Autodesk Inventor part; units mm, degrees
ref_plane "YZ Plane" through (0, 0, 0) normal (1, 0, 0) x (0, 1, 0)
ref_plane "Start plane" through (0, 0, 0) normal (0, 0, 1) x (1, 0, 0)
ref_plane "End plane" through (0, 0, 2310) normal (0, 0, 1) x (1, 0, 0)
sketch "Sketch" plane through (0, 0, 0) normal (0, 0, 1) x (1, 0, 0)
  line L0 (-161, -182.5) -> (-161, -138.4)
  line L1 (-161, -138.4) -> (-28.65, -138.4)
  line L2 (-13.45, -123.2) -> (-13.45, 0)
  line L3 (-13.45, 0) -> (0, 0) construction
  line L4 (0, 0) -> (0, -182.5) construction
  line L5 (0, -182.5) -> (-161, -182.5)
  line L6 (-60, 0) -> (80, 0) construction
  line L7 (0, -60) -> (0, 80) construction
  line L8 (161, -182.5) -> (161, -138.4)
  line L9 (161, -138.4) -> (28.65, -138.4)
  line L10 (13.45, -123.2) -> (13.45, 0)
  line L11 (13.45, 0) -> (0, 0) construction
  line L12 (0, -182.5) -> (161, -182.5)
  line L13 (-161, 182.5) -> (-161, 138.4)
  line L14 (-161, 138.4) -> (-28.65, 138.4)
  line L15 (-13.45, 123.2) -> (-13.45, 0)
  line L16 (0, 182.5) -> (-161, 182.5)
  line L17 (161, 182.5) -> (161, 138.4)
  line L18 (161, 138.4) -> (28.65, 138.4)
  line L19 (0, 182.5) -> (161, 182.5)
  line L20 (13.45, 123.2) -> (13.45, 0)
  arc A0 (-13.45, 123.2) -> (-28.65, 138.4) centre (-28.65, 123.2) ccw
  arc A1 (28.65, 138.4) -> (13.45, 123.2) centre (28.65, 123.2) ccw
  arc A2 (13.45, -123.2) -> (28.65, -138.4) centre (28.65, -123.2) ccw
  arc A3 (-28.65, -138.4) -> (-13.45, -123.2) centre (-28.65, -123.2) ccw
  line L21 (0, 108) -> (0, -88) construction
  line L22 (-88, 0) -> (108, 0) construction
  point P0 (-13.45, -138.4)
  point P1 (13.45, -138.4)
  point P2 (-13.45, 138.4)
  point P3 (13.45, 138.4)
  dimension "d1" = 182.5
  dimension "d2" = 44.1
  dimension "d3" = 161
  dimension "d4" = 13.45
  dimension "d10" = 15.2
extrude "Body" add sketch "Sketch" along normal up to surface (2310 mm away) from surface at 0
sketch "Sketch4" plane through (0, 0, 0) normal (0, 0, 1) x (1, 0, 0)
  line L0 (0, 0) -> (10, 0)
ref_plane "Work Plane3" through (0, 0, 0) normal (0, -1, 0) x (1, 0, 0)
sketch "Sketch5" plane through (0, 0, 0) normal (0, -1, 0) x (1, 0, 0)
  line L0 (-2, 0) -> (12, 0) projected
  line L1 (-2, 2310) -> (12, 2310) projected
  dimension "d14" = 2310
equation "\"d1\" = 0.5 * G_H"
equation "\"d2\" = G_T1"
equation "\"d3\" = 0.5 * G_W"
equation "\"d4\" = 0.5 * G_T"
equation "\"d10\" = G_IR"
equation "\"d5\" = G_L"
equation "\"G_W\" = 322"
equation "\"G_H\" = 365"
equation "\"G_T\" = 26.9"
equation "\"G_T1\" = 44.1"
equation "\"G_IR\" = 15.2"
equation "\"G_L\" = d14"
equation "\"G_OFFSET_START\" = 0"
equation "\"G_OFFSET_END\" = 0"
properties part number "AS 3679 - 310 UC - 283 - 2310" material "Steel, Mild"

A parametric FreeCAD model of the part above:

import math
import FreeCAD as App
import Part
import Sketcher
from FreeCAD import Vector

doc = App.newDocument("Part")
body = doc.addObject("PartDesign::Body", "Body")

# Sketch on XY plane
sketch1 = body.newObject("Sketcher::SketchObject", "Sketch")
sketch1.AttachmentSupport = (doc.getObject("XY_Plane"), [""])
sketch1.MapMode = "FlatFace"
sketch1.addGeometry([
    Part.LineSegment(Vector(-161, -138.4, 0), Vector(-161, -182.5, 0)),  # 0
    Part.LineSegment(Vector(-161, -182.5, 0), Vector(161, -182.5, 0)),  # 1
    Part.LineSegment(Vector(161, -182.5, 0), Vector(161, -138.4, 0)),  # 2
    Part.LineSegment(Vector(161, -138.4, 0), Vector(28.65, -138.4, 0)),  # 3
    Part.ArcOfCircle(Part.Circle(Vector(28.65, -123.2, 0), Vector(0, 0, 1), 15.2), math.radians(180), math.radians(270)),  # 4
    Part.LineSegment(Vector(13.45, -123.2, 0), Vector(13.45, 123.2, 0)),  # 5
    Part.ArcOfCircle(Part.Circle(Vector(28.65, 123.2, 0), Vector(0, 0, 1), 15.2), math.radians(90), math.radians(180)),  # 6
    Part.LineSegment(Vector(28.65, 138.4, 0), Vector(161, 138.4, 0)),  # 7
    Part.LineSegment(Vector(161, 138.4, 0), Vector(161, 182.5, 0)),  # 8
    Part.LineSegment(Vector(161, 182.5, 0), Vector(-161, 182.5, 0)),  # 9
    Part.LineSegment(Vector(-161, 182.5, 0), Vector(-161, 138.4, 0)),  # 10
    Part.LineSegment(Vector(-161, 138.4, 0), Vector(-28.65, 138.4, 0)),  # 11
    Part.ArcOfCircle(Part.Circle(Vector(-28.65, 123.2, 0), Vector(0, 0, 1), 15.2), math.radians(0), math.radians(90)),  # 12
    Part.LineSegment(Vector(-13.45, 123.2, 0), Vector(-13.45, -123.2, 0)),  # 13
    Part.ArcOfCircle(Part.Circle(Vector(-28.65, -123.2, 0), Vector(0, 0, 1), 15.2), math.radians(-90), math.radians(0)),  # 14
    Part.LineSegment(Vector(-28.65, -138.4, 0), Vector(-161, -138.4, 0)),  # 15
], False)
sketch1.addConstraint([
    Sketcher.Constraint("Coincident", 0, 2, 1, 1),
    Sketcher.Constraint("Coincident", 1, 2, 2, 1),
    Sketcher.Constraint("Coincident", 2, 2, 3, 1),
    Sketcher.Constraint("Tangent", 3, 2, 4, 2),
    Sketcher.Constraint("Tangent", 4, 1, 5, 1),
    Sketcher.Constraint("Tangent", 5, 2, 6, 2),
    Sketcher.Constraint("Tangent", 6, 1, 7, 1),
    Sketcher.Constraint("Coincident", 7, 2, 8, 1),
    Sketcher.Constraint("Coincident", 8, 2, 9, 1),
    Sketcher.Constraint("Coincident", 9, 2, 10, 1),
    Sketcher.Constraint("Coincident", 10, 2, 11, 1),
    Sketcher.Constraint("Tangent", 11, 2, 12, 2),
    Sketcher.Constraint("Tangent", 12, 1, 13, 1),
    Sketcher.Constraint("Tangent", 13, 2, 14, 2),
    Sketcher.Constraint("Tangent", 14, 1, 15, 1),
    Sketcher.Constraint("Coincident", 15, 2, 0, 1),
    Sketcher.Constraint("Vertical", 0),
    Sketcher.Constraint("Horizontal", 1),
    Sketcher.Constraint("Vertical", 2),
    Sketcher.Constraint("Horizontal", 3),
    Sketcher.Constraint("Vertical", 5),
    Sketcher.Constraint("Horizontal", 7),
    Sketcher.Constraint("Vertical", 8),
    Sketcher.Constraint("Horizontal", 9),
    Sketcher.Constraint("Vertical", 10),
    Sketcher.Constraint("Horizontal", 11),
    Sketcher.Constraint("Vertical", 13),
    Sketcher.Constraint("Horizontal", 15),
    Sketcher.Constraint("Equal", 4, 6),
    Sketcher.Constraint("Equal", 6, 12),
    Sketcher.Constraint("Equal", 12, 14),
    Sketcher.Constraint("Symmetric", 4, 3, 12, 3, -1, 1),
    Sketcher.Constraint("Symmetric", 0, 2, 8, 2, -1, 1),
    Sketcher.Constraint("Symmetric", 7, 2, 10, 2, -2),
    Sketcher.Constraint("Symmetric", 2, 2, 15, 2, -2),
    Sketcher.Constraint("Radius", 4, 15.2),
    Sketcher.Constraint("DistanceY", 0, 2, 0, 1, 44.1),
    Sketcher.Constraint("DistanceX", 0, 2, -1, 1, 161.0),
    Sketcher.Constraint("DistanceY", 0, 2, -1, 1, 182.5),
    Sketcher.Constraint("DistanceX", -1, 1, 4, 1, 13.45),
])
pad1 = body.newObject("PartDesign::Pad", "Pad")
pad1.Profile = sketch1
pad1.Length = 2310

doc.recompute()
